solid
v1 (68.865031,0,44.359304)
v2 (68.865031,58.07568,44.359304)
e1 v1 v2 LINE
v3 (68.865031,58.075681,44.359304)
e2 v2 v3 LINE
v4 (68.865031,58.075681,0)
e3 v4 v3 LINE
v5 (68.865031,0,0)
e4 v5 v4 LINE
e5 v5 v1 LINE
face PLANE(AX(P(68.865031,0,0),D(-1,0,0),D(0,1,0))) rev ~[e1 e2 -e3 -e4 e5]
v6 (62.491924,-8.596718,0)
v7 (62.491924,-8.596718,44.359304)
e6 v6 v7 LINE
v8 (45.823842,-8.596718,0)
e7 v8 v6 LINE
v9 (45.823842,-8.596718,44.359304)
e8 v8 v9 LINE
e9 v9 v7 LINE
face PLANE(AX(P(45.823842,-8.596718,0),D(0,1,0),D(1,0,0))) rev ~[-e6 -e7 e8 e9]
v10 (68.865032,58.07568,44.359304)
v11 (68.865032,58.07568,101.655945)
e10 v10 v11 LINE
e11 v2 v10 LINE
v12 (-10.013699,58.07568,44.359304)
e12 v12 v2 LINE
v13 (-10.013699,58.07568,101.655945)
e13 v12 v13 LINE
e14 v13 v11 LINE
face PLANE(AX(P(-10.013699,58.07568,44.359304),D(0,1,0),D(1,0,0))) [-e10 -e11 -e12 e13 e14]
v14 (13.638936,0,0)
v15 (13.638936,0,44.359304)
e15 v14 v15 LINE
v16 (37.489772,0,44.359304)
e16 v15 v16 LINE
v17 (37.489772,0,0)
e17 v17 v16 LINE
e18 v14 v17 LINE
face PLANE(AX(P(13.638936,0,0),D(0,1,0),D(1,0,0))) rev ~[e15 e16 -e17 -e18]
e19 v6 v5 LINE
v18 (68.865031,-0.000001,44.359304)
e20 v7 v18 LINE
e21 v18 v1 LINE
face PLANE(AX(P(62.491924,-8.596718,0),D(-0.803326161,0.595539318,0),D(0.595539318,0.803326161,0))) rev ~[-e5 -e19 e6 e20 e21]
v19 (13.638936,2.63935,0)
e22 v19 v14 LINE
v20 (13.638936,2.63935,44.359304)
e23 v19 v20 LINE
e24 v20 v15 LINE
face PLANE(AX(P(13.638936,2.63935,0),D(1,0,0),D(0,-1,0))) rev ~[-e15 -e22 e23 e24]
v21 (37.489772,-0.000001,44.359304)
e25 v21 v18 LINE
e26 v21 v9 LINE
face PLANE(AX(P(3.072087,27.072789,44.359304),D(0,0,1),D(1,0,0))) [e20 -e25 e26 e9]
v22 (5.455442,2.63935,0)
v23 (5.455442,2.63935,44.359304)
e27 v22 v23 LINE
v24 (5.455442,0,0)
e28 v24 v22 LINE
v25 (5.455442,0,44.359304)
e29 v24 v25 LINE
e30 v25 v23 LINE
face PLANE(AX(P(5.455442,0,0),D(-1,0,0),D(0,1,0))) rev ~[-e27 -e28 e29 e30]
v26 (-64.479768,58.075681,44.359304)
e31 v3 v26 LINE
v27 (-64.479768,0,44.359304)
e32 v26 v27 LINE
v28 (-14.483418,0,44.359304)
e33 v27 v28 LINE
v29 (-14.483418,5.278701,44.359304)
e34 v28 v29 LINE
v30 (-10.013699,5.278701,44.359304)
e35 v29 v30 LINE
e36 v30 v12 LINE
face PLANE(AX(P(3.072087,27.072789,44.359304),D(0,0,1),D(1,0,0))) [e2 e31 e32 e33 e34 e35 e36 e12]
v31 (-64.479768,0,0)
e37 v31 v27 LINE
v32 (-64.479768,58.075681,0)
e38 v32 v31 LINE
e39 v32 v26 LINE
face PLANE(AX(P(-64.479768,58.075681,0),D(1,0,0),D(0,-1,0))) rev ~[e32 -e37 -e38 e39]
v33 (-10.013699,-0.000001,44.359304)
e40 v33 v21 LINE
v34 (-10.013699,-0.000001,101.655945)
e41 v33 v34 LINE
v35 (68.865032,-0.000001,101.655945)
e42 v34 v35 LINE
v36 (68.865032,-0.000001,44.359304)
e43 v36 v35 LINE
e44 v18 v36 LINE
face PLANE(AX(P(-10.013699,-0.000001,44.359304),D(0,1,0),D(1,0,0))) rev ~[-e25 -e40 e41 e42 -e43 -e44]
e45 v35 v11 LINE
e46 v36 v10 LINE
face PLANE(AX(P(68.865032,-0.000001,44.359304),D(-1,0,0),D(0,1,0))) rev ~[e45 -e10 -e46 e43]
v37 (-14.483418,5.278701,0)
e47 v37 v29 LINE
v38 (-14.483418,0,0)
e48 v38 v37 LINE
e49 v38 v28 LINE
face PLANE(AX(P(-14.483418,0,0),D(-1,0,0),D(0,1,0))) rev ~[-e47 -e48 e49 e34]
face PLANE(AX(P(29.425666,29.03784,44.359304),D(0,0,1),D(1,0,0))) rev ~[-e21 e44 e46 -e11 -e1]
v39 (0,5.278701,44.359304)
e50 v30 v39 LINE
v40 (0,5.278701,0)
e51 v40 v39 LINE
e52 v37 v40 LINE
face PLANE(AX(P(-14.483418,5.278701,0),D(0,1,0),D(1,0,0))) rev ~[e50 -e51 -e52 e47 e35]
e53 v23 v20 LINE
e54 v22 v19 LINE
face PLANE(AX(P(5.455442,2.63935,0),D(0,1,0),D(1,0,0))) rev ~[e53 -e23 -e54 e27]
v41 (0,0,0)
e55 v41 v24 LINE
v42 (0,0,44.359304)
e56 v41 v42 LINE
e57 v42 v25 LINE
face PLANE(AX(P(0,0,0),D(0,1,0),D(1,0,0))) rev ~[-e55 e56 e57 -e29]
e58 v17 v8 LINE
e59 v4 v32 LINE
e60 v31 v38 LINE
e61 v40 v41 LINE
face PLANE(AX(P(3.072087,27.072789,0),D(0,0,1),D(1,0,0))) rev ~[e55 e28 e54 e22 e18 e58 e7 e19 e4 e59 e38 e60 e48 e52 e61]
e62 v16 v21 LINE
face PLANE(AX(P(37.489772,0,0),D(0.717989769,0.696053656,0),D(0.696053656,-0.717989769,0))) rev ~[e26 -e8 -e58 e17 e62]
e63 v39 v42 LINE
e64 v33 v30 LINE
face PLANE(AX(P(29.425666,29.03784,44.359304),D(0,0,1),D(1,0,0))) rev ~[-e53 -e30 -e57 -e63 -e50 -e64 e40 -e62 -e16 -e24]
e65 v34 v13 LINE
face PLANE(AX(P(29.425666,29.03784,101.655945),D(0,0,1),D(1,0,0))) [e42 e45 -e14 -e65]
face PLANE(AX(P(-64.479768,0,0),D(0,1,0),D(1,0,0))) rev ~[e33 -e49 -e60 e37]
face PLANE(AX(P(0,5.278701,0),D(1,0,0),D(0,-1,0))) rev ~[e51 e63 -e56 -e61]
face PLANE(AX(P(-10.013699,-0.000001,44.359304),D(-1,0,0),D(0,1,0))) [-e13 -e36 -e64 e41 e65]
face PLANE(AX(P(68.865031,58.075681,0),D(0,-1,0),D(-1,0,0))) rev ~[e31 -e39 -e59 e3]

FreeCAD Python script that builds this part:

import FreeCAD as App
import Part
import Sketcher
from FreeCAD import Vector
Q = App.Units.Quantity

doc = App.newDocument("Part")
body = doc.addObject("PartDesign::Body", "Body")

sketch1 = doc.addObject("Sketcher::SketchObject", "Sketch")
body.addObject(sketch1)
sketch1.AttachmentSupport = (doc.XY_Plane, [""])
sketch1.MapMode = "FlatFace"
sketch1.addGeometry(Part.LineSegment(Vector(68.865031, 58.075681, 0), Vector(-64.479768, 58.075681, 0)), False)
sketch1.addGeometry(Part.LineSegment(Vector(-64.479768, 58.075681, 0), Vector(-64.479768, 0, 0)), False)
sketch1.addGeometry(Part.LineSegment(Vector(-64.479768, 0, 0), Vector(-14.483418, 0, 0)), False)
sketch1.addGeometry(Part.LineSegment(Vector(-14.483418, 0, 0), Vector(-14.483418, 5.278701, 0)), False)
sketch1.addGeometry(Part.LineSegment(Vector(-14.483418, 5.278701, 0), Vector(0, 5.278701, 0)), False)
sketch1.addGeometry(Part.LineSegment(Vector(0, 5.278701, 0), Vector(0, 0, 0)), False)
sketch1.addGeometry(Part.LineSegment(Vector(0, 0, 0), Vector(5.455442, 0, 0)), False)
sketch1.addGeometry(Part.LineSegment(Vector(5.455442, 0, 0), Vector(5.455442, 2.63935, 0)), False)
sketch1.addGeometry(Part.LineSegment(Vector(5.455442, 2.63935, 0), Vector(13.638936, 2.63935, 0)), False)
sketch1.addGeometry(Part.LineSegment(Vector(13.638936, 2.63935, 0), Vector(13.638936, 0, 0)), False)
sketch1.addGeometry(Part.LineSegment(Vector(13.638936, 0, 0), Vector(37.489772, 0, 0)), False)
sketch1.addGeometry(Part.LineSegment(Vector(37.489772, 0, 0), Vector(45.823842, -8.596718, 0)), False)
sketch1.addGeometry(Part.LineSegment(Vector(45.823842, -8.596718, 0), Vector(62.491924, -8.596718, 0)), False)
sketch1.addGeometry(Part.LineSegment(Vector(62.491924, -8.596718, 0), Vector(68.865031, 0, 0)), False)
sketch1.addGeometry(Part.LineSegment(Vector(68.865031, 0, 0), Vector(68.865031, 58.075681, 0)), False)
sketch1.addConstraint(Sketcher.Constraint("Coincident", 0, 2, 1, 1))
sketch1.addConstraint(Sketcher.Constraint("Coincident", 1, 2, 2, 1))
sketch1.addConstraint(Sketcher.Constraint("Coincident", 2, 2, 3, 1))
sketch1.addConstraint(Sketcher.Constraint("Coincident", 3, 2, 4, 1))
sketch1.addConstraint(Sketcher.Constraint("Coincident", 4, 2, 5, 1))
sketch1.addConstraint(Sketcher.Constraint("Coincident", 5, 2, 6, 1))
sketch1.addConstraint(Sketcher.Constraint("Coincident", 6, 2, 7, 1))
sketch1.addConstraint(Sketcher.Constraint("Coincident", 7, 2, 8, 1))
sketch1.addConstraint(Sketcher.Constraint("Coincident", 8, 2, 9, 1))
sketch1.addConstraint(Sketcher.Constraint("Coincident", 9, 2, 10, 1))
sketch1.addConstraint(Sketcher.Constraint("Coincident", 10, 2, 11, 1))
sketch1.addConstraint(Sketcher.Constraint("Coincident", 11, 2, 12, 1))
sketch1.addConstraint(Sketcher.Constraint("Coincident", 12, 2, 13, 1))
sketch1.addConstraint(Sketcher.Constraint("Coincident", 13, 2, 14, 1))
sketch1.addConstraint(Sketcher.Constraint("Coincident", 14, 2, 0, 1))
sketch1.addConstraint(Sketcher.Constraint("Horizontal", 0))
sketch1.addConstraint(Sketcher.Constraint("Vertical", 1))
sketch1.addConstraint(Sketcher.Constraint("Horizontal", 2))
sketch1.addConstraint(Sketcher.Constraint("Vertical", 3))
sketch1.addConstraint(Sketcher.Constraint("Horizontal", 4))
sketch1.addConstraint(Sketcher.Constraint("Vertical", 5))
sketch1.addConstraint(Sketcher.Constraint("Horizontal", 6))
sketch1.addConstraint(Sketcher.Constraint("Vertical", 7))
sketch1.addConstraint(Sketcher.Constraint("Horizontal", 8))
sketch1.addConstraint(Sketcher.Constraint("Vertical", 9))
sketch1.addConstraint(Sketcher.Constraint("Horizontal", 10))
sketch1.addConstraint(Sketcher.Constraint("Horizontal", 12))
sketch1.addConstraint(Sketcher.Constraint("Vertical", 14))
sketch1.addConstraint(Sketcher.Constraint("Coincident", 5, 2, -1, 1))
sketch1.addConstraint(Sketcher.Constraint("PointOnObject", 1, 2, -1))
sketch1.addConstraint(Sketcher.Constraint("PointOnObject", 9, 2, -1))
sketch1.addConstraint(Sketcher.Constraint("PointOnObject", 13, 2, -1))
sketch1.addConstraint(Sketcher.Constraint("DistanceX", 0, 2, 0, 1, Q("133.344799 mm")))
sketch1.addConstraint(Sketcher.Constraint("DistanceY", 3, 1, 3, 2, Q("5.278701 mm")))
sketch1.addConstraint(Sketcher.Constraint("DistanceX", 2, 1, 2, 2, Q("49.99635 mm")))
sketch1.addConstraint(Sketcher.Constraint("DistanceX", 6, 1, 6, 2, Q("5.455442 mm")))
sketch1.addConstraint(Sketcher.Constraint("DistanceX", 12, 1, 12, 2, Q("16.668082 mm")))
sketch1.addConstraint(Sketcher.Constraint("DistanceY", 1, 2, 1, 1, Q("58.075681 mm")))
sketch1.addConstraint(Sketcher.Constraint("DistanceY", 7, 1, 7, 2, Q("2.63935 mm")))
sketch1.addConstraint(Sketcher.Constraint("DistanceX", 6, 2, 11, 2, Q("40.3684 mm")))
sketch1.addConstraint(Sketcher.Constraint("DistanceY", 12, 2, 14, 2, Q("66.672399 mm")))
sketch1.addConstraint(Sketcher.Constraint("DistanceX", 4, 1, 4, 2, Q("14.483418 mm")))
sketch1.addConstraint(Sketcher.Constraint("DistanceX", 8, 1, 8, 2, Q("8.183494 mm")))
sketch1.addConstraint(Sketcher.Constraint("DistanceX", 10, 1, 10, 2, Q("23.850836 mm")))
pad1 = doc.addObject("PartDesign::Pad", "Pad")
body.addObject(pad1)
pad1.Profile = sketch1
pad1.Length = 44.359304

sketch2 = doc.addObject("Sketcher::SketchObject", "Sketch001")
body.addObject(sketch2)
sketch2.AttachmentSupport = (doc.XY_Plane, [""])
sketch2.MapMode = "FlatFace"
sketch2.AttachmentOffset = App.Placement(Vector(0, 0, 44.359304), App.Rotation())
sketch2.addGeometry(Part.LineSegment(Vector(-10.013699, 58.07568, 0), Vector(-10.013699, 0, 0)), False)
sketch2.addGeometry(Part.LineSegment(Vector(-10.013699, 0, 0), Vector(68.865032, 0, 0)), False)
sketch2.addGeometry(Part.LineSegment(Vector(68.865032, 0, 0), Vector(68.865032, 58.07568, 0)), False)
sketch2.addGeometry(Part.LineSegment(Vector(68.865032, 58.07568, 0), Vector(-10.013699, 58.07568, 0)), False)
sketch2.addConstraint(Sketcher.Constraint("Coincident", 0, 2, 1, 1))
sketch2.addConstraint(Sketcher.Constraint("Coincident", 1, 2, 2, 1))
sketch2.addConstraint(Sketcher.Constraint("Coincident", 2, 2, 3, 1))
sketch2.addConstraint(Sketcher.Constraint("Coincident", 3, 2, 0, 1))
sketch2.addConstraint(Sketcher.Constraint("Vertical", 0))
sketch2.addConstraint(Sketcher.Constraint("Horizontal", 1))
sketch2.addConstraint(Sketcher.Constraint("Vertical", 2))
sketch2.addConstraint(Sketcher.Constraint("Horizontal", 3))
sketch2.addConstraint(Sketcher.Constraint("PointOnObject", 0, 2, -1))
sketch2.addConstraint(Sketcher.Constraint("DistanceX", 1, 1, 1, 2, Q("78.878731 mm")))
sketch2.addConstraint(Sketcher.Constraint("DistanceY", 0, 2, 0, 1, Q("58.075681 mm")))
sketch2.addConstraint(Sketcher.Constraint("DistanceX", 0, 2, -1, 1, Q("10.013699 mm")))
pad2 = doc.addObject("PartDesign::Pad", "Pad001")
body.addObject(pad2)
pad2.Profile = sketch2
pad2.Length = 57.296641

doc.recompute()
